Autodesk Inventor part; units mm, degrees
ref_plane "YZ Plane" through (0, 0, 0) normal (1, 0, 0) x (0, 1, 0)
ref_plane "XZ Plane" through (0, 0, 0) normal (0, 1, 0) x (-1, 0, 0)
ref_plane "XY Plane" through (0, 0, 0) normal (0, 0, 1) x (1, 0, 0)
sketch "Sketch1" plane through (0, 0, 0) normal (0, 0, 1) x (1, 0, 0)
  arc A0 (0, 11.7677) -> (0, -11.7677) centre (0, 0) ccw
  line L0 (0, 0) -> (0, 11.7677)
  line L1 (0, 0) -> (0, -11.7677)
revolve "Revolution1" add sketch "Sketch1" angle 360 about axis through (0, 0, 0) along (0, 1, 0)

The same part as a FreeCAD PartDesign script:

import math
import FreeCAD as App
import Part
import Sketcher

V = App.Vector

doc = App.newDocument("Part")
body = doc.addObject("PartDesign::Body", "Body")

sketch1 = body.newObject("Sketcher::SketchObject", "Sketch")
sketch1.AttachmentSupport = (doc.getObject("XY_Plane"), [""])
sketch1.MapMode = "FlatFace"
sketch1.addGeometry(Part.LineSegment(V(0, -12, 0), V(0, 12, 0)), False)
sketch1.addGeometry(Part.ArcOfCircle(Part.Circle(V(0, 0, 0), V(0, 0, 1), 12), math.radians(90), math.radians(270)), False)
sketch1.addConstraint(Sketcher.Constraint("Coincident", 0, 1, 1, 2))
sketch1.addConstraint(Sketcher.Constraint("Coincident", 1, 1, 0, 2))
sketch1.addConstraint(Sketcher.Constraint("Vertical", 0))
sketch1.addConstraint(Sketcher.Constraint("Coincident", 1, 3, -1, 1))
sketch1.addConstraint(Sketcher.Constraint("PointOnObject", 0, 1, -2))
sketch1.addConstraint(Sketcher.Constraint("Radius", 1, 11.7677))
revolution = body.newObject("PartDesign::Revolution", "Revolution")
revolution.Profile = sketch1
revolution.ReferenceAxis = (sketch1, ["V_Axis"])
revolution.Angle = 360

doc.recompute()
